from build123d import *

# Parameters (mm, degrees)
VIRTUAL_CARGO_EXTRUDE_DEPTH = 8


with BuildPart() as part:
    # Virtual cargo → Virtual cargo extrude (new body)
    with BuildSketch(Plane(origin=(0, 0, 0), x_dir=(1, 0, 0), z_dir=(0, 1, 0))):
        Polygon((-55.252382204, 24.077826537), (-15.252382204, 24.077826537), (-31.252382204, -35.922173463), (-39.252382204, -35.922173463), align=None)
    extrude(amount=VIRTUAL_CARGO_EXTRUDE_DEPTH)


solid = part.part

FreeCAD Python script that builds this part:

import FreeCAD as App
import Part
import Sketcher

V = App.Vector
Q = App.Units.Quantity

doc = App.newDocument("Part")
body = doc.addObject("PartDesign::Body", "Body")

# Sketch on XZ plane
sketch1 = body.newObject("Sketcher::SketchObject", "Sketch")
sketch1.AttachmentSupport = (doc.getObject("XZ_Plane"), [""])
sketch1.MapMode = "FlatFace"
sketch1.addGeometry([
    Part.LineSegment(V(-15, -24, 0), V(-55, -24, 0)),
    Part.LineSegment(V(-55, -24, 0), V(-39, 36, 0)),
    Part.LineSegment(V(-39, 36, 0), V(-31, 36, 0)),
    Part.LineSegment(V(-31, 36, 0), V(-15, -24, 0)),
], False)
sketch1.addConstraint([
    Sketcher.Constraint("Coincident", 0, 2, 1, 1),
    Sketcher.Constraint("Coincident", 1, 2, 2, 1),
    Sketcher.Constraint("Coincident", 2, 2, 3, 1),
    Sketcher.Constraint("Coincident", 3, 2, 0, 1),
    Sketcher.Constraint("Horizontal", 0),
    Sketcher.Constraint("Horizontal", 2),
    Sketcher.Constraint("Equal", 1, 3),
    Sketcher.Constraint("DistanceX", 0, 2, 0, 1, Q("40 mm")),
    Sketcher.Constraint("DistanceX", 2, 1, 2, 2, Q("8 mm")),
    Sketcher.Constraint("DistanceY", 0, 2, 1, 2, Q("60 mm")),
    Sketcher.Constraint("DistanceX", 0, 2, -1, 1, Q("55.252382 mm")),
    Sketcher.Constraint("DistanceY", 0, 2, -1, 1, Q("24.077827 mm")),
])
pad1 = body.newObject("PartDesign::Pad", "Pad")
pad1.Profile = sketch1
pad1.Length = 8
pad1.Reversed = True

doc.recompute()
